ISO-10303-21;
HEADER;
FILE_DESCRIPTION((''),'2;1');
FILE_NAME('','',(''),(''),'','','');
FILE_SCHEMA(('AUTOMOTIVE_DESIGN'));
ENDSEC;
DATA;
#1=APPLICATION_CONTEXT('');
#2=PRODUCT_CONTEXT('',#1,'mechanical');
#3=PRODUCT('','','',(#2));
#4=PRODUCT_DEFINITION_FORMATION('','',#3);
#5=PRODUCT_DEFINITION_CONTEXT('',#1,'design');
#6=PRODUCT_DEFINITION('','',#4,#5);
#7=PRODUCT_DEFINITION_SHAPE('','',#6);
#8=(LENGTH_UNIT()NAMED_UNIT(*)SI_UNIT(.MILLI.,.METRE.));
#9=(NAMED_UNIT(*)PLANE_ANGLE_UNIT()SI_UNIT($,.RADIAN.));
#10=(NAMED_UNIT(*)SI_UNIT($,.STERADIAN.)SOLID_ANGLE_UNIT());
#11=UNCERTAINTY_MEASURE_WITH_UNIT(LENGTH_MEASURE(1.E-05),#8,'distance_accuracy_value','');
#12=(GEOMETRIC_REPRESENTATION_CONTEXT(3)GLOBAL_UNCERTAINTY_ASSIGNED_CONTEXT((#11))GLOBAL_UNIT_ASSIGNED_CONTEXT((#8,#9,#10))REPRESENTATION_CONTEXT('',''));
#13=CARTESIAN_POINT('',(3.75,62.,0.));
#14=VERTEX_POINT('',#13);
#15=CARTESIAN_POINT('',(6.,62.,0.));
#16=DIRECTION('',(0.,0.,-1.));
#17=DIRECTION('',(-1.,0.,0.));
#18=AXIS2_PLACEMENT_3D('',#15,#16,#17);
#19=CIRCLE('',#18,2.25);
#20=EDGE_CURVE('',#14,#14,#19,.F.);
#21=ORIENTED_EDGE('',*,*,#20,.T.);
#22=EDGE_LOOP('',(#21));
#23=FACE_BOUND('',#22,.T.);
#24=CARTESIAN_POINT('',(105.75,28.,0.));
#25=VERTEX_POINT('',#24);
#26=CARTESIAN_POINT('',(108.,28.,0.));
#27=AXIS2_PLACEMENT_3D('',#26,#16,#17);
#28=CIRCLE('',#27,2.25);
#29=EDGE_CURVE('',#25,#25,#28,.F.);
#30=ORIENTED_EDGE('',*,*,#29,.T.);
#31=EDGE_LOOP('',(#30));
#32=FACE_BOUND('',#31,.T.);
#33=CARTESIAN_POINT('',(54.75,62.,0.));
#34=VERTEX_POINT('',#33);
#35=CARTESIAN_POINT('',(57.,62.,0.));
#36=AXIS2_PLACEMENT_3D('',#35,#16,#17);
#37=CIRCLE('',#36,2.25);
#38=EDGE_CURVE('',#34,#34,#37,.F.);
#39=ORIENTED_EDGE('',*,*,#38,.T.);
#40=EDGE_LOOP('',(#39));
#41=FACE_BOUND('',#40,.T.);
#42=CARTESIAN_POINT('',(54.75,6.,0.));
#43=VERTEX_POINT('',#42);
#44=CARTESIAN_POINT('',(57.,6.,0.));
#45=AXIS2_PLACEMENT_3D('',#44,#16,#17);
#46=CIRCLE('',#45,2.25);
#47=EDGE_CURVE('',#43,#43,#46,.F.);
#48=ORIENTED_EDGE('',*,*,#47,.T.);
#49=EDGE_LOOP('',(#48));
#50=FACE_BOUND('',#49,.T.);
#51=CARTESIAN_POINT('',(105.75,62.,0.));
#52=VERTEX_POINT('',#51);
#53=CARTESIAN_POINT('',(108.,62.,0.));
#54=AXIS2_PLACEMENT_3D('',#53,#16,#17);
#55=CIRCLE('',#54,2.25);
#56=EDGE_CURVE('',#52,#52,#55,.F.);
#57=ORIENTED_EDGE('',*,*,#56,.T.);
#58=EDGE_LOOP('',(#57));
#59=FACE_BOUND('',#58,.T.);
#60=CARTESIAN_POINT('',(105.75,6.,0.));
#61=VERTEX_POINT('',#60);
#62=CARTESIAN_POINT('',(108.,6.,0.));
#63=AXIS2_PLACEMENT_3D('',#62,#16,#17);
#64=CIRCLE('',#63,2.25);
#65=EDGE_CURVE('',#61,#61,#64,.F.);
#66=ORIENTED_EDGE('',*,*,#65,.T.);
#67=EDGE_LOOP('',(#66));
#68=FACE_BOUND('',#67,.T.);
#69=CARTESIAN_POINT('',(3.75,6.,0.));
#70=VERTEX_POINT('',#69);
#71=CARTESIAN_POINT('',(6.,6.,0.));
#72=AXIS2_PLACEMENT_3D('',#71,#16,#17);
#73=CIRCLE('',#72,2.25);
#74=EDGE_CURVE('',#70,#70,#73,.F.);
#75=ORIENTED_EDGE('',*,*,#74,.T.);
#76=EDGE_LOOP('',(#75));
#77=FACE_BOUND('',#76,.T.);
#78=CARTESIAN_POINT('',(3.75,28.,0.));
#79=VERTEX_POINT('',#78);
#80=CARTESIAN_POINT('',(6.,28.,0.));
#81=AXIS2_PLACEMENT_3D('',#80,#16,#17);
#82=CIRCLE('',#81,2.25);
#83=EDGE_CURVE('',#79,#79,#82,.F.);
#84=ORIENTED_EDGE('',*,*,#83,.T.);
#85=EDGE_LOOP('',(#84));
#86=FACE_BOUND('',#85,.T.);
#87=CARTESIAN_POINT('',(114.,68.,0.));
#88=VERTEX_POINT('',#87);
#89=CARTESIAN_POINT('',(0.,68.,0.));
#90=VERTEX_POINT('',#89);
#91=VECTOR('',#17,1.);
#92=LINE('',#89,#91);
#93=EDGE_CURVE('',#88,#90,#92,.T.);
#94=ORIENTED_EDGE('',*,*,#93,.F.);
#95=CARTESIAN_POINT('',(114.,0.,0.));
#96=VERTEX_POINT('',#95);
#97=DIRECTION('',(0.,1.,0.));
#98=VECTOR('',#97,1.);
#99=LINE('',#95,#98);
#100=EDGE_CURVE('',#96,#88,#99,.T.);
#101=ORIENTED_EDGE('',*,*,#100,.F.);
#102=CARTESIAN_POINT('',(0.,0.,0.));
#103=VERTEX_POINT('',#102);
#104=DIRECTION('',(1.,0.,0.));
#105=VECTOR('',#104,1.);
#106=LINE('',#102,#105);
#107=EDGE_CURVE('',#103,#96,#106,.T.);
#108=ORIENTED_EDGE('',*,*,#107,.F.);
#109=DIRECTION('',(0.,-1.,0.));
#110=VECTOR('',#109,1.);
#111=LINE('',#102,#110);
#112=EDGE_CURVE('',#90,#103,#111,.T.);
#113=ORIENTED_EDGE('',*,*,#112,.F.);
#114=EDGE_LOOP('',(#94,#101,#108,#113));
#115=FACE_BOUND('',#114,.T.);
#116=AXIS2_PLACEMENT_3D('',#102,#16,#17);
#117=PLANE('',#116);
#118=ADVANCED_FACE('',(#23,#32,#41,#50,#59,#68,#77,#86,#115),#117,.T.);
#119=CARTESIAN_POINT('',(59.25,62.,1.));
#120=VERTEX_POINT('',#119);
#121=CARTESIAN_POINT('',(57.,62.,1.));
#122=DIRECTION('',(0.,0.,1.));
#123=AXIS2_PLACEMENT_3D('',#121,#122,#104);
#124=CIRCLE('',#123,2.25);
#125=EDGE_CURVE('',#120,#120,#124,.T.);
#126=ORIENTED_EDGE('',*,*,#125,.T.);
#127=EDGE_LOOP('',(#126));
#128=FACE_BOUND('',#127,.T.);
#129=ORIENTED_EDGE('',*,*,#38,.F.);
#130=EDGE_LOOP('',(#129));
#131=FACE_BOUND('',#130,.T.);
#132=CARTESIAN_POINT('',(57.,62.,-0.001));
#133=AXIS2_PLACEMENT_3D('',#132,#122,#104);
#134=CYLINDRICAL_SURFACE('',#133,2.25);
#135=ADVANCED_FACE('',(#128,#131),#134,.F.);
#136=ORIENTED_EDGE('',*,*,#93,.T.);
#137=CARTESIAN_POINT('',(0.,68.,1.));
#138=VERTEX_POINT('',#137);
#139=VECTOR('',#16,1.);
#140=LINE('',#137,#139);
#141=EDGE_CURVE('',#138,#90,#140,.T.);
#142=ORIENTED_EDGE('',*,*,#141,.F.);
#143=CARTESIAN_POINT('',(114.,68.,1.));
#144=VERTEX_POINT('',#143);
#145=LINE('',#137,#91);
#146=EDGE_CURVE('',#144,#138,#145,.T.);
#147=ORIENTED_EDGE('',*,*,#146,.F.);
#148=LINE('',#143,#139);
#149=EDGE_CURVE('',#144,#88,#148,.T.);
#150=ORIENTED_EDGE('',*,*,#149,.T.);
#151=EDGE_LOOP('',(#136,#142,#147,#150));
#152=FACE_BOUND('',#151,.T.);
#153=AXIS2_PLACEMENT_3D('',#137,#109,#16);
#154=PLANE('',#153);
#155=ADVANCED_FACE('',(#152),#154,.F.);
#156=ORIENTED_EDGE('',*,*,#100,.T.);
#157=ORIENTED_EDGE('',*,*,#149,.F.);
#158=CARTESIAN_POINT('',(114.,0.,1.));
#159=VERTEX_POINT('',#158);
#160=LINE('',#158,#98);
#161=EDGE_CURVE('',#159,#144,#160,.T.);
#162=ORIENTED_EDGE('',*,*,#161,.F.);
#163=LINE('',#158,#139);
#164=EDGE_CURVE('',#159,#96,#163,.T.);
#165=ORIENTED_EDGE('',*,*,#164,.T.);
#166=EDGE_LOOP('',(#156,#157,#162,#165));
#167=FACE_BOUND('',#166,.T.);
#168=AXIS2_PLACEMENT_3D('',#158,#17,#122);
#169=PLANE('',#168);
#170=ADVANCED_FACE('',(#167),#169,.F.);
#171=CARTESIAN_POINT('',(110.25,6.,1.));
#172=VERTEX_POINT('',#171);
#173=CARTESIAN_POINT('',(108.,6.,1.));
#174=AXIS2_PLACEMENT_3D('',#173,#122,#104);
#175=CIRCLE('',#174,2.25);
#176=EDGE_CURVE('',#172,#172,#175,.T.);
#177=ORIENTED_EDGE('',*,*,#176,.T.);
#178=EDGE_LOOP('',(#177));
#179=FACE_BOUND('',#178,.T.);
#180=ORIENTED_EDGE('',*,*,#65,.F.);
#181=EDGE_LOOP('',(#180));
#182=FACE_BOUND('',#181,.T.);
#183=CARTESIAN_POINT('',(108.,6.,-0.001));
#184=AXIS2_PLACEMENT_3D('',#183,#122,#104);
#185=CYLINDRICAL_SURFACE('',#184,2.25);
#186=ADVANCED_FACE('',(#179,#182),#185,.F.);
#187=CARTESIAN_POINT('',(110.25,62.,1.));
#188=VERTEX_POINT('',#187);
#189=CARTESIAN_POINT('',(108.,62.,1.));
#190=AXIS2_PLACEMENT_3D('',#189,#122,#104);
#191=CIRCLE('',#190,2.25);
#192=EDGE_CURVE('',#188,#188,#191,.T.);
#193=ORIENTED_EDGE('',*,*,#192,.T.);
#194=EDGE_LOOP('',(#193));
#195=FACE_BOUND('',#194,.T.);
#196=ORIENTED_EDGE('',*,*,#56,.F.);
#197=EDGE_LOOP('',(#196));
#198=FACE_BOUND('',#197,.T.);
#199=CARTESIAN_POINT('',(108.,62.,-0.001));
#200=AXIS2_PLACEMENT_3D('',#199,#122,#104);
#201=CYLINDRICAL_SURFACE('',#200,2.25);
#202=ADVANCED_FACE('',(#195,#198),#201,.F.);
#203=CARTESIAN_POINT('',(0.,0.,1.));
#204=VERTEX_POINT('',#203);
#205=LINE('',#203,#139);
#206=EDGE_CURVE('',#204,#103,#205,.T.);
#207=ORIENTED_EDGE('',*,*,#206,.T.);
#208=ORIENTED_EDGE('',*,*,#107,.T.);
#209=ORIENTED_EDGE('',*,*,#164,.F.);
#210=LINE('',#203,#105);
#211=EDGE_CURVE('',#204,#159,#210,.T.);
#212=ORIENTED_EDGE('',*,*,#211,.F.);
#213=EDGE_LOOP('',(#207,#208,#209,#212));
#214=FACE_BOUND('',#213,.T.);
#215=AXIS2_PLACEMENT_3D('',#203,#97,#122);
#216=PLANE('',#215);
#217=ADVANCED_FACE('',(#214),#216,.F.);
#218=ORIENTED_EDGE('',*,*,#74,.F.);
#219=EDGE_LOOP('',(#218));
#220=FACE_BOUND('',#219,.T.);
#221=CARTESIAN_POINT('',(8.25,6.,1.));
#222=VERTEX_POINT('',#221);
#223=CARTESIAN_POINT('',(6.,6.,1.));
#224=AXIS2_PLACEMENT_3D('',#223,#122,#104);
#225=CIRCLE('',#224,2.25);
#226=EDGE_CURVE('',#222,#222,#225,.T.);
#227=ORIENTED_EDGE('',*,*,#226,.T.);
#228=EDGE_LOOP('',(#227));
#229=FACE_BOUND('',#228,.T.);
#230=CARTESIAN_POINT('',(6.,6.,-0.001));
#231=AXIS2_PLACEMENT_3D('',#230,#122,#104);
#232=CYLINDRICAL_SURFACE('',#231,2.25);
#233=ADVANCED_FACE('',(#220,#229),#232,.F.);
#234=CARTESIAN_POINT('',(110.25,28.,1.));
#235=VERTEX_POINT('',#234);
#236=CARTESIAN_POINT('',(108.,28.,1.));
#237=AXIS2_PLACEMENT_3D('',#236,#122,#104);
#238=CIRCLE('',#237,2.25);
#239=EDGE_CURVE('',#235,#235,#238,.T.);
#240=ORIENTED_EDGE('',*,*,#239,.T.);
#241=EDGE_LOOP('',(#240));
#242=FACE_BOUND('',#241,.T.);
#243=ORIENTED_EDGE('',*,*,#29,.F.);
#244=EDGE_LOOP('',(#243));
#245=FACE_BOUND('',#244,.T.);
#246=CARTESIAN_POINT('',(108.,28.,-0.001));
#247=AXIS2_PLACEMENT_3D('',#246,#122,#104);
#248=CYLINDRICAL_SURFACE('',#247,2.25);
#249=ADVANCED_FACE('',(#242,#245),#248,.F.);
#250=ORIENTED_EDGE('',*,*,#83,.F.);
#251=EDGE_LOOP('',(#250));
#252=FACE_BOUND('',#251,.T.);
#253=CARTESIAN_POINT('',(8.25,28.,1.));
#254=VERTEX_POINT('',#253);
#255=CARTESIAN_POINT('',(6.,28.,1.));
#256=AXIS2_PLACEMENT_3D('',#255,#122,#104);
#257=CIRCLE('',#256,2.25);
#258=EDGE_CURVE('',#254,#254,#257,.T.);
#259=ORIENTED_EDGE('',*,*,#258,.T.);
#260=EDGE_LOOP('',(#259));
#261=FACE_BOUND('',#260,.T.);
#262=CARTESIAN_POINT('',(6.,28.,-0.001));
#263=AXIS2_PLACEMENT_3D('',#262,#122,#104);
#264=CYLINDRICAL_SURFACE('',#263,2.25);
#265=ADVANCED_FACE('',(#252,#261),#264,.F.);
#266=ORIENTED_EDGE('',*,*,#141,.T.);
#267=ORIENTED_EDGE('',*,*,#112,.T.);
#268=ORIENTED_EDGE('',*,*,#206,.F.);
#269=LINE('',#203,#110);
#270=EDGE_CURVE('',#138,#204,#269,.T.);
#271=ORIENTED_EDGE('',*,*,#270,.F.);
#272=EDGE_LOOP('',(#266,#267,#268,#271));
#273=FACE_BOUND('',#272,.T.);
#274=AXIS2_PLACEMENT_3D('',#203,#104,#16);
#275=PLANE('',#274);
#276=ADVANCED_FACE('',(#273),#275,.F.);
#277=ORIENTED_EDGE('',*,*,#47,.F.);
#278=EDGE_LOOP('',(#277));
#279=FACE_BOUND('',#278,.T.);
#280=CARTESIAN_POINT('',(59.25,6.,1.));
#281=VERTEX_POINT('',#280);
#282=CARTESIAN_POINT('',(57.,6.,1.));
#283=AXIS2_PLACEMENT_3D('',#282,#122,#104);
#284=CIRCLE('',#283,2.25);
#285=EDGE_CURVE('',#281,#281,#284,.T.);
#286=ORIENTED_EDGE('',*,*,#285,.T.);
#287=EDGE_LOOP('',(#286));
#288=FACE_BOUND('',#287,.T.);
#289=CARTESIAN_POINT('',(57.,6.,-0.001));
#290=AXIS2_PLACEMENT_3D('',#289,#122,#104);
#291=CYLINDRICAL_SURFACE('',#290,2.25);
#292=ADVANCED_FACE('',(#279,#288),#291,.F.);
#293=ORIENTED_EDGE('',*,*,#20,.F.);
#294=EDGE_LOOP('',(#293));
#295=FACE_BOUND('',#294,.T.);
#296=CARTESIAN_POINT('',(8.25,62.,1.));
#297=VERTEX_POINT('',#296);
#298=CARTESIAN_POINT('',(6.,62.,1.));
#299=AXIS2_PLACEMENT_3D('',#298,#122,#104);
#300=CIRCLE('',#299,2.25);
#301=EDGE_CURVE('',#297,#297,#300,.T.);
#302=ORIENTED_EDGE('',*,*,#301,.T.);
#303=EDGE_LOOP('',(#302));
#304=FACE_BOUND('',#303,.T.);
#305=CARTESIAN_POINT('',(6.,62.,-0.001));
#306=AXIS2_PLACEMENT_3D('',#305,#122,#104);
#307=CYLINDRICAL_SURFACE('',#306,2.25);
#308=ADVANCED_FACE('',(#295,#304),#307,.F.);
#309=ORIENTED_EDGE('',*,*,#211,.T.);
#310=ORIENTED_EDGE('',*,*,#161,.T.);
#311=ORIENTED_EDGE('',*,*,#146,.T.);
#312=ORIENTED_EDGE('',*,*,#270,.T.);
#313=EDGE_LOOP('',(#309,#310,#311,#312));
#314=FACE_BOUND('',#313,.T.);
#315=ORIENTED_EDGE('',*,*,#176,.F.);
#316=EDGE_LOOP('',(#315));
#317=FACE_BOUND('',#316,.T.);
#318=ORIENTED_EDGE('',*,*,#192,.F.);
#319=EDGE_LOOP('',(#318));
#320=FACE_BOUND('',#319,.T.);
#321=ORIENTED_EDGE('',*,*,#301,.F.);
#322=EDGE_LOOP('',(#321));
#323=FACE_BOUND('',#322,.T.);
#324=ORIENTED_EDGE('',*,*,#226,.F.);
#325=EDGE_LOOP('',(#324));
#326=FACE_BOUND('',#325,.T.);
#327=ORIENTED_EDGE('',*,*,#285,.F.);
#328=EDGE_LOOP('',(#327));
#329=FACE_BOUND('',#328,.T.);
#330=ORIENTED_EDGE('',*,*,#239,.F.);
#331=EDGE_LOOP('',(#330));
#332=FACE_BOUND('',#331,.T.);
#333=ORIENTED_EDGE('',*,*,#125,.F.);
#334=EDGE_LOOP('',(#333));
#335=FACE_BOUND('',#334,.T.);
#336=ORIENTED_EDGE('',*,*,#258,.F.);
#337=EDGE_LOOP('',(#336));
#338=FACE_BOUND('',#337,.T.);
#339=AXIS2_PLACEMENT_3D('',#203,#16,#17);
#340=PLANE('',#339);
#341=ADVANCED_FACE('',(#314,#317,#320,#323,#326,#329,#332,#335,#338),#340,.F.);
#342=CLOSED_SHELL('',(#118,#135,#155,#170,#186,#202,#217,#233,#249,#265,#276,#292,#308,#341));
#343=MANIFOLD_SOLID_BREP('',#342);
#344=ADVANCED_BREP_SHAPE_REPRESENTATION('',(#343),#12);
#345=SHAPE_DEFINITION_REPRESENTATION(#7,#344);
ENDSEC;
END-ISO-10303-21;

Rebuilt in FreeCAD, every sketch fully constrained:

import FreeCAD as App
import Part
import Sketcher

V = App.Vector

doc = App.newDocument("Part")
params = doc.addObject("Spreadsheet::Sheet", "Params")
for row, (alias, value) in enumerate([
    ("sketch1_width", "114 mm"),
    ("sketch1_height", "68 mm"),
    ("pad1_length", "1 mm"),
    ("sketch2_diameter", "4.5 mm"),
    ("sketch3_diameter", "4.5 mm"),
    ("sketch4_diameter", "4.5 mm"),
    ("sketch5_diameter", "4.5 mm"),
    ("sketch6_diameter", "4.5 mm"),
    ("sketch7_diameter", "4.5 mm"),
    ("sketch8_diameter", "4.5 mm"),
    ("sketch9_diameter", "4.5 mm"),
], start=1):
    params.set(f"A{row}", alias)
    params.set(f"B{row}", "=" + value)
    params.setAlias(f"B{row}", alias)

body = doc.addObject("PartDesign::Body", "Body")

sketch1 = body.newObject("Sketcher::SketchObject", "Sketch")
sketch1.AttachmentSupport = (doc.getObject("XY_Plane"), [""])
sketch1.MapMode = "FlatFace"
sketch1.addGeometry(Part.LineSegment(V(0, 68, 0), V(0, 0, 0)), False)
sketch1.addGeometry(Part.LineSegment(V(0, 0, 0), V(114, 0, 0)), False)
sketch1.addGeometry(Part.LineSegment(V(114, 0, 0), V(114, 68, 0)), False)
sketch1.addGeometry(Part.LineSegment(V(114, 68, 0), V(0, 68, 0)), False)
sketch1.addConstraint(Sketcher.Constraint("Coincident", 0, 2, 1, 1))
sketch1.addConstraint(Sketcher.Constraint("Coincident", 1, 2, 2, 1))
sketch1.addConstraint(Sketcher.Constraint("Coincident", 2, 2, 3, 1))
sketch1.addConstraint(Sketcher.Constraint("Coincident", 3, 2, 0, 1))
sketch1.addConstraint(Sketcher.Constraint("Vertical", 0))
sketch1.addConstraint(Sketcher.Constraint("Horizontal", 1))
sketch1.addConstraint(Sketcher.Constraint("Vertical", 2))
sketch1.addConstraint(Sketcher.Constraint("Horizontal", 3))
sketch1.addConstraint(Sketcher.Constraint("Coincident", 0, 2, -1, 1))
sketch1.addConstraint(Sketcher.Constraint("DistanceX", 1, 1, 1, 2, 114.0))
sketch1.addConstraint(Sketcher.Constraint("DistanceY", 0, 2, 0, 1, 68.0))
sketch1.setExpression("Constraints[9]", "Params.sketch1_width")
sketch1.setExpression("Constraints[10]", "Params.sketch1_height")
pad1 = body.newObject("PartDesign::Pad", "Pad")
pad1.Profile = sketch1
pad1.setExpression("Length", "Params.pad1_length")

sketch2 = body.newObject("Sketcher::SketchObject", "Sketch001")
sketch2.AttachmentSupport = (doc.getObject("XY_Plane"), [""])
sketch2.MapMode = "FlatFace"
sketch2.AttachmentOffset = App.Placement(V(0, 0, 1), App.Rotation())
sketch2.addGeometry(Part.Circle(V(6, 62, 0), V(0, 0, 1), 2.25), False)
sketch2.addConstraint(Sketcher.Constraint("Diameter", 0, 4.5))
sketch2.addConstraint(Sketcher.Constraint("DistanceX", -1, 1, 0, 3, 6.0))
sketch2.addConstraint(Sketcher.Constraint("DistanceY", -1, 1, 0, 3, 62.0))
sketch2.setExpression("Constraints[0]", "Params.sketch2_diameter")
pocket1 = body.newObject("PartDesign::Pocket", "Pocket")
pocket1.Profile = sketch2
pocket1.Type = "UpToFirst"

sketch3 = body.newObject("Sketcher::SketchObject", "Sketch002")
sketch3.AttachmentSupport = (doc.getObject("XY_Plane"), [""])
sketch3.MapMode = "FlatFace"
sketch3.AttachmentOffset = App.Placement(V(0, 0, 1), App.Rotation())
sketch3.addGeometry(Part.Circle(V(6, 28, 0), V(0, 0, 1), 2.25), False)
sketch3.addConstraint(Sketcher.Constraint("Diameter", 0, 4.5))
sketch3.addConstraint(Sketcher.Constraint("DistanceX", -1, 1, 0, 3, 6.0))
sketch3.addConstraint(Sketcher.Constraint("DistanceY", -1, 1, 0, 3, 28.0))
sketch3.setExpression("Constraints[0]", "Params.sketch3_diameter")
pocket2 = body.newObject("PartDesign::Pocket", "Pocket001")
pocket2.Profile = sketch3
pocket2.Type = "UpToFirst"

sketch4 = body.newObject("Sketcher::SketchObject", "Sketch003")
sketch4.AttachmentSupport = (doc.getObject("XY_Plane"), [""])
sketch4.MapMode = "FlatFace"
sketch4.AttachmentOffset = App.Placement(V(0, 0, 1), App.Rotation())
sketch4.addGeometry(Part.Circle(V(6, 6, 0), V(0, 0, 1), 2.25), False)
sketch4.addConstraint(Sketcher.Constraint("Diameter", 0, 4.5))
sketch4.addConstraint(Sketcher.Constraint("DistanceX", -1, 1, 0, 3, 6.0))
sketch4.addConstraint(Sketcher.Constraint("DistanceY", -1, 1, 0, 3, 6.0))
sketch4.setExpression("Constraints[0]", "Params.sketch4_diameter")
pocket3 = body.newObject("PartDesign::Pocket", "Pocket002")
pocket3.Profile = sketch4
pocket3.Type = "UpToFirst"

sketch5 = body.newObject("Sketcher::SketchObject", "Sketch004")
sketch5.AttachmentSupport = (doc.getObject("XY_Plane"), [""])
sketch5.MapMode = "FlatFace"
sketch5.AttachmentOffset = App.Placement(V(0, 0, 1), App.Rotation())
sketch5.addGeometry(Part.Circle(V(57, 6, 0), V(0, 0, 1), 2.25), False)
sketch5.addConstraint(Sketcher.Constraint("Diameter", 0, 4.5))
sketch5.addConstraint(Sketcher.Constraint("DistanceX", -1, 1, 0, 3, 57.0))
sketch5.addConstraint(Sketcher.Constraint("DistanceY", -1, 1, 0, 3, 6.0))
sketch5.setExpression("Constraints[0]", "Params.sketch5_diameter")
pocket4 = body.newObject("PartDesign::Pocket", "Pocket003")
pocket4.Profile = sketch5
pocket4.Type = "UpToFirst"

sketch6 = body.newObject("Sketcher::SketchObject", "Sketch005")
sketch6.AttachmentSupport = (doc.getObject("XY_Plane"), [""])
sketch6.MapMode = "FlatFace"
sketch6.AttachmentOffset = App.Placement(V(0, 0, 1), App.Rotation())
sketch6.addGeometry(Part.Circle(V(57, 62, 0), V(0, 0, 1), 2.25), False)
sketch6.addConstraint(Sketcher.Constraint("Diameter", 0, 4.5))
sketch6.addConstraint(Sketcher.Constraint("DistanceX", -1, 1, 0, 3, 57.0))
sketch6.addConstraint(Sketcher.Constraint("DistanceY", -1, 1, 0, 3, 62.0))
sketch6.setExpression("Constraints[0]", "Params.sketch6_diameter")
pocket5 = body.newObject("PartDesign::Pocket", "Pocket004")
pocket5.Profile = sketch6
pocket5.Type = "UpToFirst"

sketch7 = body.newObject("Sketcher::SketchObject", "Sketch006")
sketch7.AttachmentSupport = (doc.getObject("XY_Plane"), [""])
sketch7.MapMode = "FlatFace"
sketch7.AttachmentOffset = App.Placement(V(0, 0, 1), App.Rotation())
sketch7.addGeometry(Part.Circle(V(108, 62, 0), V(0, 0, 1), 2.25), False)
sketch7.addConstraint(Sketcher.Constraint("Diameter", 0, 4.5))
sketch7.addConstraint(Sketcher.Constraint("DistanceX", -1, 1, 0, 3, 108.0))
sketch7.addConstraint(Sketcher.Constraint("DistanceY", -1, 1, 0, 3, 62.0))
sketch7.setExpression("Constraints[0]", "Params.sketch7_diameter")
pocket6 = body.newObject("PartDesign::Pocket", "Pocket005")
pocket6.Profile = sketch7
pocket6.Type = "UpToFirst"

sketch8 = body.newObject("Sketcher::SketchObject", "Sketch007")
sketch8.AttachmentSupport = (doc.getObject("XY_Plane"), [""])
sketch8.MapMode = "FlatFace"
sketch8.AttachmentOffset = App.Placement(V(0, 0, 1), App.Rotation())
sketch8.addGeometry(Part.Circle(V(108, 28, 0), V(0, 0, 1), 2.25), False)
sketch8.addConstraint(Sketcher.Constraint("Diameter", 0, 4.5))
sketch8.addConstraint(Sketcher.Constraint("DistanceX", -1, 1, 0, 3, 108.0))
sketch8.addConstraint(Sketcher.Constraint("DistanceY", -1, 1, 0, 3, 28.0))
sketch8.setExpression("Constraints[0]", "Params.sketch8_diameter")
pocket7 = body.newObject("PartDesign::Pocket", "Pocket006")
pocket7.Profile = sketch8
pocket7.Type = "UpToFirst"

sketch9 = body.newObject("Sketcher::SketchObject", "Sketch008")
sketch9.AttachmentSupport = (doc.getObject("XY_Plane"), [""])
sketch9.MapMode = "FlatFace"
sketch9.AttachmentOffset = App.Placement(V(0, 0, 1), App.Rotation())
sketch9.addGeometry(Part.Circle(V(108, 6, 0), V(0, 0, 1), 2.25), False)
sketch9.addConstraint(Sketcher.Constraint("Diameter", 0, 4.5))
sketch9.addConstraint(Sketcher.Constraint("DistanceX", -1, 1, 0, 3, 108.0))
sketch9.addConstraint(Sketcher.Constraint("DistanceY", -1, 1, 0, 3, 6.0))
sketch9.setExpression("Constraints[0]", "Params.sketch9_diameter")
pocket8 = body.newObject("PartDesign::Pocket", "Pocket007")
pocket8.Profile = sketch9
pocket8.Type = "UpToFirst"

doc.recompute()
